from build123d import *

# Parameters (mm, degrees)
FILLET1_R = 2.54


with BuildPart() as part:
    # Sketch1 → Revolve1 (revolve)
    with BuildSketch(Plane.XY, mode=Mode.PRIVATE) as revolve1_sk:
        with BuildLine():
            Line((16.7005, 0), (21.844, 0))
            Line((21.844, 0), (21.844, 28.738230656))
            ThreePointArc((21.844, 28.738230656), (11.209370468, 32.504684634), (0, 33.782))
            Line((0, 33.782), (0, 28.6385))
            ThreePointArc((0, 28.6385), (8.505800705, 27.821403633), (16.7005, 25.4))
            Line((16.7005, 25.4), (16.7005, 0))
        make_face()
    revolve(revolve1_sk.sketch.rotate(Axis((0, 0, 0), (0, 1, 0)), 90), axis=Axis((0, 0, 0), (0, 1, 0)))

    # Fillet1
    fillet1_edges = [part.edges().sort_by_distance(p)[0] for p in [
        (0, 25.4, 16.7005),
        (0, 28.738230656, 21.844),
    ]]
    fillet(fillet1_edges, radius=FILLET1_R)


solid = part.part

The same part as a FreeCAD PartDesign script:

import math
import FreeCAD as App
import Part
import Sketcher
Q = App.Units.Quantity


def edges_at(feature, points):
    """Names of the edges that pass closest to the given points."""
    edges = feature.Shape.Edges
    near = lambda p: min(range(len(edges)), key=lambda i: edges[i].distToShape(Part.Vertex(*p))[0])
    return sorted({f"Edge{near(p) + 1}" for p in points})

doc = App.newDocument("Part")
params = doc.addObject("Spreadsheet::Sheet", "Params")
for row, (alias, value) in enumerate([
    ("sketch1_height", "1 in"),
    ("revolution_angle", "360 deg"),
    ("fillet_radius", "0.1 in"),
], start=1):
    params.set(f"A{row}", alias)
    params.set(f"B{row}", "=" + value)
    params.setAlias(f"B{row}", alias)

body = doc.addObject("PartDesign::Body", "Body")

sketch1 = body.newObject("Sketcher::SketchObject", "Sketch")
sketch1.AttachmentSupport = (doc.getObject("XY_Plane"), [""])
sketch1.MapMode = "FlatFace"
sketch1.addGeometry(Part.LineSegment(App.Vector(16.7005, 0, 0), App.Vector(21.844, 0, 0)), False)
sketch1.addGeometry(Part.LineSegment(App.Vector(21.844, 0, 0), App.Vector(21.844, 28.738231, 0)), False)
sketch1.addGeometry(Part.ArcOfCircle(Part.Circle(App.Vector(0, -16.041843, 0), App.Vector(0, 0, 1), 49.823843), math.radians(63.996591), math.radians(90)), False)
sketch1.addGeometry(Part.LineSegment(App.Vector(0, 33.782, 0), App.Vector(0, 28.6385, 0)), False)
sketch1.addGeometry(Part.ArcOfCircle(Part.Circle(App.Vector(0, -16.041843, 0), App.Vector(0, 0, 1), 44.680343), math.radians(68.051235), math.radians(90)), False)
sketch1.addGeometry(Part.LineSegment(App.Vector(16.7005, 25.4, 0), App.Vector(16.7005, 0, 0)), False)
sketch1.addConstraint(Sketcher.Constraint("Coincident", 0, 2, 1, 1))
sketch1.addConstraint(Sketcher.Constraint("Coincident", 1, 2, 2, 1))
sketch1.addConstraint(Sketcher.Constraint("Coincident", 2, 2, 3, 1))
sketch1.addConstraint(Sketcher.Constraint("Coincident", 3, 2, 4, 2))
sketch1.addConstraint(Sketcher.Constraint("Coincident", 4, 1, 5, 1))
sketch1.addConstraint(Sketcher.Constraint("Coincident", 5, 2, 0, 1))
sketch1.addConstraint(Sketcher.Constraint("Horizontal", 0))
sketch1.addConstraint(Sketcher.Constraint("Vertical", 1))
sketch1.addConstraint(Sketcher.Constraint("Vertical", 3))
sketch1.addConstraint(Sketcher.Constraint("Vertical", 5))
sketch1.addConstraint(Sketcher.Constraint("Coincident", 4, 3, 2, 3))
sketch1.addConstraint(Sketcher.Constraint("PointOnObject", 2, 3, -2))
sketch1.addConstraint(Sketcher.Constraint("PointOnObject", 0, 2, -1))
sketch1.addConstraint(Sketcher.Constraint("PointOnObject", 2, 2, -2))
sketch1.addConstraint(Sketcher.Constraint("Equal", 0, 3))
sketch1.addConstraint(Sketcher.Constraint("DistanceY", 5, 2, 5, 1, Q("1 in")))
sketch1.addConstraint(Sketcher.Constraint("DistanceX", -1, 1, 0, 2, Q("0.86 in")))
sketch1.addConstraint(Sketcher.Constraint("DistanceY", -1, 1, 2, 2, Q("1.33 in")))
sketch1.addConstraint(Sketcher.Constraint("DistanceX", 0, 1, 0, 2, Q("0.2025 in")))
sketch1.setExpression("Constraints[15]", "Params.sketch1_height")
revolution = body.newObject("PartDesign::Revolution", "Revolution")
revolution.Profile = sketch1
revolution.ReferenceAxis = (sketch1, ["V_Axis"])
revolution.setExpression("Angle", "Params.revolution_angle")
doc.recompute()

fillet = body.newObject("PartDesign::Fillet", "Fillet")
fillet.Base = (revolution, edges_at(revolution, [(0, 25.4, 16.701), (0, 28.738, 21.844)]))
fillet.setExpression("Radius", "Params.fillet_radius")

doc.recompute()
